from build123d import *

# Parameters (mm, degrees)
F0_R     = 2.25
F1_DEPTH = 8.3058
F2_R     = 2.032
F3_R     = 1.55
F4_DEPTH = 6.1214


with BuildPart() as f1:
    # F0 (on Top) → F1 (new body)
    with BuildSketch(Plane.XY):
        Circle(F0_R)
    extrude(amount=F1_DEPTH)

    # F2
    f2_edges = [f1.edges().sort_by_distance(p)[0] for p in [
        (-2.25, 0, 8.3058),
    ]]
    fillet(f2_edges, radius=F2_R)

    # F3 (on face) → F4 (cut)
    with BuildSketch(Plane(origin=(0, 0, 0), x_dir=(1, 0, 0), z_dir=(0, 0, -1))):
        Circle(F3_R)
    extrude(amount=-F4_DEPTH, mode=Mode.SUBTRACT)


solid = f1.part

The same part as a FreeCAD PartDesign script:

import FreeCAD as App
import Part
import Sketcher
from FreeCAD import Vector
Q = App.Units.Quantity


def edges_at(feature, points):
    """Names of the edges that pass closest to the given points."""
    edges = feature.Shape.Edges
    near = lambda p: min(range(len(edges)), key=lambda i: edges[i].distToShape(Part.Vertex(*p))[0])
    return sorted({f"Edge{near(p) + 1}" for p in points})

doc = App.newDocument("Part")
body = doc.addObject("PartDesign::Body", "Body")

sketch1 = body.newObject("Sketcher::SketchObject", "Sketch")
sketch1.AttachmentSupport = (doc.getObject("XY_Plane"), [""])
sketch1.MapMode = "FlatFace"
sketch1.addGeometry(Part.Circle(Vector(0, 0, 0), Vector(0, 0, 1), 2.2), False)
sketch1.addConstraint([
    Sketcher.Constraint("Coincident", 0, 3, -1, 1),
    Sketcher.Constraint("Diameter", 0, 4.5),
])
pad1 = body.newObject("PartDesign::Pad", "Pad")
pad1.Profile = sketch1
pad1.Length = Q("0.327 in")
doc.recompute()

fillet = body.newObject("PartDesign::Fillet", "Fillet")
fillet.Base = (pad1, edges_at(pad1, [(-2.25, 0, 8.306)]))
fillet.Radius = Q("0.08 in")

sketch2 = body.newObject("Sketcher::SketchObject", "Sketch001")
sketch2.AttachmentSupport = (doc.getObject("XY_Plane"), [""])
sketch2.MapMode = "FlatFace"
sketch2.addGeometry(Part.Circle(Vector(0, 0, 0), Vector(0, 0, 1), 1.6), False)
sketch2.addConstraint([
    Sketcher.Constraint("Coincident", 0, 3, -1, 1),
    Sketcher.Constraint("Diameter", 0, 3.1),
])
pocket1 = body.newObject("PartDesign::Pocket", "Pocket")
pocket1.Profile = sketch2
pocket1.Length = Q("0.241 in")
pocket1.Reversed = True

doc.recompute()
